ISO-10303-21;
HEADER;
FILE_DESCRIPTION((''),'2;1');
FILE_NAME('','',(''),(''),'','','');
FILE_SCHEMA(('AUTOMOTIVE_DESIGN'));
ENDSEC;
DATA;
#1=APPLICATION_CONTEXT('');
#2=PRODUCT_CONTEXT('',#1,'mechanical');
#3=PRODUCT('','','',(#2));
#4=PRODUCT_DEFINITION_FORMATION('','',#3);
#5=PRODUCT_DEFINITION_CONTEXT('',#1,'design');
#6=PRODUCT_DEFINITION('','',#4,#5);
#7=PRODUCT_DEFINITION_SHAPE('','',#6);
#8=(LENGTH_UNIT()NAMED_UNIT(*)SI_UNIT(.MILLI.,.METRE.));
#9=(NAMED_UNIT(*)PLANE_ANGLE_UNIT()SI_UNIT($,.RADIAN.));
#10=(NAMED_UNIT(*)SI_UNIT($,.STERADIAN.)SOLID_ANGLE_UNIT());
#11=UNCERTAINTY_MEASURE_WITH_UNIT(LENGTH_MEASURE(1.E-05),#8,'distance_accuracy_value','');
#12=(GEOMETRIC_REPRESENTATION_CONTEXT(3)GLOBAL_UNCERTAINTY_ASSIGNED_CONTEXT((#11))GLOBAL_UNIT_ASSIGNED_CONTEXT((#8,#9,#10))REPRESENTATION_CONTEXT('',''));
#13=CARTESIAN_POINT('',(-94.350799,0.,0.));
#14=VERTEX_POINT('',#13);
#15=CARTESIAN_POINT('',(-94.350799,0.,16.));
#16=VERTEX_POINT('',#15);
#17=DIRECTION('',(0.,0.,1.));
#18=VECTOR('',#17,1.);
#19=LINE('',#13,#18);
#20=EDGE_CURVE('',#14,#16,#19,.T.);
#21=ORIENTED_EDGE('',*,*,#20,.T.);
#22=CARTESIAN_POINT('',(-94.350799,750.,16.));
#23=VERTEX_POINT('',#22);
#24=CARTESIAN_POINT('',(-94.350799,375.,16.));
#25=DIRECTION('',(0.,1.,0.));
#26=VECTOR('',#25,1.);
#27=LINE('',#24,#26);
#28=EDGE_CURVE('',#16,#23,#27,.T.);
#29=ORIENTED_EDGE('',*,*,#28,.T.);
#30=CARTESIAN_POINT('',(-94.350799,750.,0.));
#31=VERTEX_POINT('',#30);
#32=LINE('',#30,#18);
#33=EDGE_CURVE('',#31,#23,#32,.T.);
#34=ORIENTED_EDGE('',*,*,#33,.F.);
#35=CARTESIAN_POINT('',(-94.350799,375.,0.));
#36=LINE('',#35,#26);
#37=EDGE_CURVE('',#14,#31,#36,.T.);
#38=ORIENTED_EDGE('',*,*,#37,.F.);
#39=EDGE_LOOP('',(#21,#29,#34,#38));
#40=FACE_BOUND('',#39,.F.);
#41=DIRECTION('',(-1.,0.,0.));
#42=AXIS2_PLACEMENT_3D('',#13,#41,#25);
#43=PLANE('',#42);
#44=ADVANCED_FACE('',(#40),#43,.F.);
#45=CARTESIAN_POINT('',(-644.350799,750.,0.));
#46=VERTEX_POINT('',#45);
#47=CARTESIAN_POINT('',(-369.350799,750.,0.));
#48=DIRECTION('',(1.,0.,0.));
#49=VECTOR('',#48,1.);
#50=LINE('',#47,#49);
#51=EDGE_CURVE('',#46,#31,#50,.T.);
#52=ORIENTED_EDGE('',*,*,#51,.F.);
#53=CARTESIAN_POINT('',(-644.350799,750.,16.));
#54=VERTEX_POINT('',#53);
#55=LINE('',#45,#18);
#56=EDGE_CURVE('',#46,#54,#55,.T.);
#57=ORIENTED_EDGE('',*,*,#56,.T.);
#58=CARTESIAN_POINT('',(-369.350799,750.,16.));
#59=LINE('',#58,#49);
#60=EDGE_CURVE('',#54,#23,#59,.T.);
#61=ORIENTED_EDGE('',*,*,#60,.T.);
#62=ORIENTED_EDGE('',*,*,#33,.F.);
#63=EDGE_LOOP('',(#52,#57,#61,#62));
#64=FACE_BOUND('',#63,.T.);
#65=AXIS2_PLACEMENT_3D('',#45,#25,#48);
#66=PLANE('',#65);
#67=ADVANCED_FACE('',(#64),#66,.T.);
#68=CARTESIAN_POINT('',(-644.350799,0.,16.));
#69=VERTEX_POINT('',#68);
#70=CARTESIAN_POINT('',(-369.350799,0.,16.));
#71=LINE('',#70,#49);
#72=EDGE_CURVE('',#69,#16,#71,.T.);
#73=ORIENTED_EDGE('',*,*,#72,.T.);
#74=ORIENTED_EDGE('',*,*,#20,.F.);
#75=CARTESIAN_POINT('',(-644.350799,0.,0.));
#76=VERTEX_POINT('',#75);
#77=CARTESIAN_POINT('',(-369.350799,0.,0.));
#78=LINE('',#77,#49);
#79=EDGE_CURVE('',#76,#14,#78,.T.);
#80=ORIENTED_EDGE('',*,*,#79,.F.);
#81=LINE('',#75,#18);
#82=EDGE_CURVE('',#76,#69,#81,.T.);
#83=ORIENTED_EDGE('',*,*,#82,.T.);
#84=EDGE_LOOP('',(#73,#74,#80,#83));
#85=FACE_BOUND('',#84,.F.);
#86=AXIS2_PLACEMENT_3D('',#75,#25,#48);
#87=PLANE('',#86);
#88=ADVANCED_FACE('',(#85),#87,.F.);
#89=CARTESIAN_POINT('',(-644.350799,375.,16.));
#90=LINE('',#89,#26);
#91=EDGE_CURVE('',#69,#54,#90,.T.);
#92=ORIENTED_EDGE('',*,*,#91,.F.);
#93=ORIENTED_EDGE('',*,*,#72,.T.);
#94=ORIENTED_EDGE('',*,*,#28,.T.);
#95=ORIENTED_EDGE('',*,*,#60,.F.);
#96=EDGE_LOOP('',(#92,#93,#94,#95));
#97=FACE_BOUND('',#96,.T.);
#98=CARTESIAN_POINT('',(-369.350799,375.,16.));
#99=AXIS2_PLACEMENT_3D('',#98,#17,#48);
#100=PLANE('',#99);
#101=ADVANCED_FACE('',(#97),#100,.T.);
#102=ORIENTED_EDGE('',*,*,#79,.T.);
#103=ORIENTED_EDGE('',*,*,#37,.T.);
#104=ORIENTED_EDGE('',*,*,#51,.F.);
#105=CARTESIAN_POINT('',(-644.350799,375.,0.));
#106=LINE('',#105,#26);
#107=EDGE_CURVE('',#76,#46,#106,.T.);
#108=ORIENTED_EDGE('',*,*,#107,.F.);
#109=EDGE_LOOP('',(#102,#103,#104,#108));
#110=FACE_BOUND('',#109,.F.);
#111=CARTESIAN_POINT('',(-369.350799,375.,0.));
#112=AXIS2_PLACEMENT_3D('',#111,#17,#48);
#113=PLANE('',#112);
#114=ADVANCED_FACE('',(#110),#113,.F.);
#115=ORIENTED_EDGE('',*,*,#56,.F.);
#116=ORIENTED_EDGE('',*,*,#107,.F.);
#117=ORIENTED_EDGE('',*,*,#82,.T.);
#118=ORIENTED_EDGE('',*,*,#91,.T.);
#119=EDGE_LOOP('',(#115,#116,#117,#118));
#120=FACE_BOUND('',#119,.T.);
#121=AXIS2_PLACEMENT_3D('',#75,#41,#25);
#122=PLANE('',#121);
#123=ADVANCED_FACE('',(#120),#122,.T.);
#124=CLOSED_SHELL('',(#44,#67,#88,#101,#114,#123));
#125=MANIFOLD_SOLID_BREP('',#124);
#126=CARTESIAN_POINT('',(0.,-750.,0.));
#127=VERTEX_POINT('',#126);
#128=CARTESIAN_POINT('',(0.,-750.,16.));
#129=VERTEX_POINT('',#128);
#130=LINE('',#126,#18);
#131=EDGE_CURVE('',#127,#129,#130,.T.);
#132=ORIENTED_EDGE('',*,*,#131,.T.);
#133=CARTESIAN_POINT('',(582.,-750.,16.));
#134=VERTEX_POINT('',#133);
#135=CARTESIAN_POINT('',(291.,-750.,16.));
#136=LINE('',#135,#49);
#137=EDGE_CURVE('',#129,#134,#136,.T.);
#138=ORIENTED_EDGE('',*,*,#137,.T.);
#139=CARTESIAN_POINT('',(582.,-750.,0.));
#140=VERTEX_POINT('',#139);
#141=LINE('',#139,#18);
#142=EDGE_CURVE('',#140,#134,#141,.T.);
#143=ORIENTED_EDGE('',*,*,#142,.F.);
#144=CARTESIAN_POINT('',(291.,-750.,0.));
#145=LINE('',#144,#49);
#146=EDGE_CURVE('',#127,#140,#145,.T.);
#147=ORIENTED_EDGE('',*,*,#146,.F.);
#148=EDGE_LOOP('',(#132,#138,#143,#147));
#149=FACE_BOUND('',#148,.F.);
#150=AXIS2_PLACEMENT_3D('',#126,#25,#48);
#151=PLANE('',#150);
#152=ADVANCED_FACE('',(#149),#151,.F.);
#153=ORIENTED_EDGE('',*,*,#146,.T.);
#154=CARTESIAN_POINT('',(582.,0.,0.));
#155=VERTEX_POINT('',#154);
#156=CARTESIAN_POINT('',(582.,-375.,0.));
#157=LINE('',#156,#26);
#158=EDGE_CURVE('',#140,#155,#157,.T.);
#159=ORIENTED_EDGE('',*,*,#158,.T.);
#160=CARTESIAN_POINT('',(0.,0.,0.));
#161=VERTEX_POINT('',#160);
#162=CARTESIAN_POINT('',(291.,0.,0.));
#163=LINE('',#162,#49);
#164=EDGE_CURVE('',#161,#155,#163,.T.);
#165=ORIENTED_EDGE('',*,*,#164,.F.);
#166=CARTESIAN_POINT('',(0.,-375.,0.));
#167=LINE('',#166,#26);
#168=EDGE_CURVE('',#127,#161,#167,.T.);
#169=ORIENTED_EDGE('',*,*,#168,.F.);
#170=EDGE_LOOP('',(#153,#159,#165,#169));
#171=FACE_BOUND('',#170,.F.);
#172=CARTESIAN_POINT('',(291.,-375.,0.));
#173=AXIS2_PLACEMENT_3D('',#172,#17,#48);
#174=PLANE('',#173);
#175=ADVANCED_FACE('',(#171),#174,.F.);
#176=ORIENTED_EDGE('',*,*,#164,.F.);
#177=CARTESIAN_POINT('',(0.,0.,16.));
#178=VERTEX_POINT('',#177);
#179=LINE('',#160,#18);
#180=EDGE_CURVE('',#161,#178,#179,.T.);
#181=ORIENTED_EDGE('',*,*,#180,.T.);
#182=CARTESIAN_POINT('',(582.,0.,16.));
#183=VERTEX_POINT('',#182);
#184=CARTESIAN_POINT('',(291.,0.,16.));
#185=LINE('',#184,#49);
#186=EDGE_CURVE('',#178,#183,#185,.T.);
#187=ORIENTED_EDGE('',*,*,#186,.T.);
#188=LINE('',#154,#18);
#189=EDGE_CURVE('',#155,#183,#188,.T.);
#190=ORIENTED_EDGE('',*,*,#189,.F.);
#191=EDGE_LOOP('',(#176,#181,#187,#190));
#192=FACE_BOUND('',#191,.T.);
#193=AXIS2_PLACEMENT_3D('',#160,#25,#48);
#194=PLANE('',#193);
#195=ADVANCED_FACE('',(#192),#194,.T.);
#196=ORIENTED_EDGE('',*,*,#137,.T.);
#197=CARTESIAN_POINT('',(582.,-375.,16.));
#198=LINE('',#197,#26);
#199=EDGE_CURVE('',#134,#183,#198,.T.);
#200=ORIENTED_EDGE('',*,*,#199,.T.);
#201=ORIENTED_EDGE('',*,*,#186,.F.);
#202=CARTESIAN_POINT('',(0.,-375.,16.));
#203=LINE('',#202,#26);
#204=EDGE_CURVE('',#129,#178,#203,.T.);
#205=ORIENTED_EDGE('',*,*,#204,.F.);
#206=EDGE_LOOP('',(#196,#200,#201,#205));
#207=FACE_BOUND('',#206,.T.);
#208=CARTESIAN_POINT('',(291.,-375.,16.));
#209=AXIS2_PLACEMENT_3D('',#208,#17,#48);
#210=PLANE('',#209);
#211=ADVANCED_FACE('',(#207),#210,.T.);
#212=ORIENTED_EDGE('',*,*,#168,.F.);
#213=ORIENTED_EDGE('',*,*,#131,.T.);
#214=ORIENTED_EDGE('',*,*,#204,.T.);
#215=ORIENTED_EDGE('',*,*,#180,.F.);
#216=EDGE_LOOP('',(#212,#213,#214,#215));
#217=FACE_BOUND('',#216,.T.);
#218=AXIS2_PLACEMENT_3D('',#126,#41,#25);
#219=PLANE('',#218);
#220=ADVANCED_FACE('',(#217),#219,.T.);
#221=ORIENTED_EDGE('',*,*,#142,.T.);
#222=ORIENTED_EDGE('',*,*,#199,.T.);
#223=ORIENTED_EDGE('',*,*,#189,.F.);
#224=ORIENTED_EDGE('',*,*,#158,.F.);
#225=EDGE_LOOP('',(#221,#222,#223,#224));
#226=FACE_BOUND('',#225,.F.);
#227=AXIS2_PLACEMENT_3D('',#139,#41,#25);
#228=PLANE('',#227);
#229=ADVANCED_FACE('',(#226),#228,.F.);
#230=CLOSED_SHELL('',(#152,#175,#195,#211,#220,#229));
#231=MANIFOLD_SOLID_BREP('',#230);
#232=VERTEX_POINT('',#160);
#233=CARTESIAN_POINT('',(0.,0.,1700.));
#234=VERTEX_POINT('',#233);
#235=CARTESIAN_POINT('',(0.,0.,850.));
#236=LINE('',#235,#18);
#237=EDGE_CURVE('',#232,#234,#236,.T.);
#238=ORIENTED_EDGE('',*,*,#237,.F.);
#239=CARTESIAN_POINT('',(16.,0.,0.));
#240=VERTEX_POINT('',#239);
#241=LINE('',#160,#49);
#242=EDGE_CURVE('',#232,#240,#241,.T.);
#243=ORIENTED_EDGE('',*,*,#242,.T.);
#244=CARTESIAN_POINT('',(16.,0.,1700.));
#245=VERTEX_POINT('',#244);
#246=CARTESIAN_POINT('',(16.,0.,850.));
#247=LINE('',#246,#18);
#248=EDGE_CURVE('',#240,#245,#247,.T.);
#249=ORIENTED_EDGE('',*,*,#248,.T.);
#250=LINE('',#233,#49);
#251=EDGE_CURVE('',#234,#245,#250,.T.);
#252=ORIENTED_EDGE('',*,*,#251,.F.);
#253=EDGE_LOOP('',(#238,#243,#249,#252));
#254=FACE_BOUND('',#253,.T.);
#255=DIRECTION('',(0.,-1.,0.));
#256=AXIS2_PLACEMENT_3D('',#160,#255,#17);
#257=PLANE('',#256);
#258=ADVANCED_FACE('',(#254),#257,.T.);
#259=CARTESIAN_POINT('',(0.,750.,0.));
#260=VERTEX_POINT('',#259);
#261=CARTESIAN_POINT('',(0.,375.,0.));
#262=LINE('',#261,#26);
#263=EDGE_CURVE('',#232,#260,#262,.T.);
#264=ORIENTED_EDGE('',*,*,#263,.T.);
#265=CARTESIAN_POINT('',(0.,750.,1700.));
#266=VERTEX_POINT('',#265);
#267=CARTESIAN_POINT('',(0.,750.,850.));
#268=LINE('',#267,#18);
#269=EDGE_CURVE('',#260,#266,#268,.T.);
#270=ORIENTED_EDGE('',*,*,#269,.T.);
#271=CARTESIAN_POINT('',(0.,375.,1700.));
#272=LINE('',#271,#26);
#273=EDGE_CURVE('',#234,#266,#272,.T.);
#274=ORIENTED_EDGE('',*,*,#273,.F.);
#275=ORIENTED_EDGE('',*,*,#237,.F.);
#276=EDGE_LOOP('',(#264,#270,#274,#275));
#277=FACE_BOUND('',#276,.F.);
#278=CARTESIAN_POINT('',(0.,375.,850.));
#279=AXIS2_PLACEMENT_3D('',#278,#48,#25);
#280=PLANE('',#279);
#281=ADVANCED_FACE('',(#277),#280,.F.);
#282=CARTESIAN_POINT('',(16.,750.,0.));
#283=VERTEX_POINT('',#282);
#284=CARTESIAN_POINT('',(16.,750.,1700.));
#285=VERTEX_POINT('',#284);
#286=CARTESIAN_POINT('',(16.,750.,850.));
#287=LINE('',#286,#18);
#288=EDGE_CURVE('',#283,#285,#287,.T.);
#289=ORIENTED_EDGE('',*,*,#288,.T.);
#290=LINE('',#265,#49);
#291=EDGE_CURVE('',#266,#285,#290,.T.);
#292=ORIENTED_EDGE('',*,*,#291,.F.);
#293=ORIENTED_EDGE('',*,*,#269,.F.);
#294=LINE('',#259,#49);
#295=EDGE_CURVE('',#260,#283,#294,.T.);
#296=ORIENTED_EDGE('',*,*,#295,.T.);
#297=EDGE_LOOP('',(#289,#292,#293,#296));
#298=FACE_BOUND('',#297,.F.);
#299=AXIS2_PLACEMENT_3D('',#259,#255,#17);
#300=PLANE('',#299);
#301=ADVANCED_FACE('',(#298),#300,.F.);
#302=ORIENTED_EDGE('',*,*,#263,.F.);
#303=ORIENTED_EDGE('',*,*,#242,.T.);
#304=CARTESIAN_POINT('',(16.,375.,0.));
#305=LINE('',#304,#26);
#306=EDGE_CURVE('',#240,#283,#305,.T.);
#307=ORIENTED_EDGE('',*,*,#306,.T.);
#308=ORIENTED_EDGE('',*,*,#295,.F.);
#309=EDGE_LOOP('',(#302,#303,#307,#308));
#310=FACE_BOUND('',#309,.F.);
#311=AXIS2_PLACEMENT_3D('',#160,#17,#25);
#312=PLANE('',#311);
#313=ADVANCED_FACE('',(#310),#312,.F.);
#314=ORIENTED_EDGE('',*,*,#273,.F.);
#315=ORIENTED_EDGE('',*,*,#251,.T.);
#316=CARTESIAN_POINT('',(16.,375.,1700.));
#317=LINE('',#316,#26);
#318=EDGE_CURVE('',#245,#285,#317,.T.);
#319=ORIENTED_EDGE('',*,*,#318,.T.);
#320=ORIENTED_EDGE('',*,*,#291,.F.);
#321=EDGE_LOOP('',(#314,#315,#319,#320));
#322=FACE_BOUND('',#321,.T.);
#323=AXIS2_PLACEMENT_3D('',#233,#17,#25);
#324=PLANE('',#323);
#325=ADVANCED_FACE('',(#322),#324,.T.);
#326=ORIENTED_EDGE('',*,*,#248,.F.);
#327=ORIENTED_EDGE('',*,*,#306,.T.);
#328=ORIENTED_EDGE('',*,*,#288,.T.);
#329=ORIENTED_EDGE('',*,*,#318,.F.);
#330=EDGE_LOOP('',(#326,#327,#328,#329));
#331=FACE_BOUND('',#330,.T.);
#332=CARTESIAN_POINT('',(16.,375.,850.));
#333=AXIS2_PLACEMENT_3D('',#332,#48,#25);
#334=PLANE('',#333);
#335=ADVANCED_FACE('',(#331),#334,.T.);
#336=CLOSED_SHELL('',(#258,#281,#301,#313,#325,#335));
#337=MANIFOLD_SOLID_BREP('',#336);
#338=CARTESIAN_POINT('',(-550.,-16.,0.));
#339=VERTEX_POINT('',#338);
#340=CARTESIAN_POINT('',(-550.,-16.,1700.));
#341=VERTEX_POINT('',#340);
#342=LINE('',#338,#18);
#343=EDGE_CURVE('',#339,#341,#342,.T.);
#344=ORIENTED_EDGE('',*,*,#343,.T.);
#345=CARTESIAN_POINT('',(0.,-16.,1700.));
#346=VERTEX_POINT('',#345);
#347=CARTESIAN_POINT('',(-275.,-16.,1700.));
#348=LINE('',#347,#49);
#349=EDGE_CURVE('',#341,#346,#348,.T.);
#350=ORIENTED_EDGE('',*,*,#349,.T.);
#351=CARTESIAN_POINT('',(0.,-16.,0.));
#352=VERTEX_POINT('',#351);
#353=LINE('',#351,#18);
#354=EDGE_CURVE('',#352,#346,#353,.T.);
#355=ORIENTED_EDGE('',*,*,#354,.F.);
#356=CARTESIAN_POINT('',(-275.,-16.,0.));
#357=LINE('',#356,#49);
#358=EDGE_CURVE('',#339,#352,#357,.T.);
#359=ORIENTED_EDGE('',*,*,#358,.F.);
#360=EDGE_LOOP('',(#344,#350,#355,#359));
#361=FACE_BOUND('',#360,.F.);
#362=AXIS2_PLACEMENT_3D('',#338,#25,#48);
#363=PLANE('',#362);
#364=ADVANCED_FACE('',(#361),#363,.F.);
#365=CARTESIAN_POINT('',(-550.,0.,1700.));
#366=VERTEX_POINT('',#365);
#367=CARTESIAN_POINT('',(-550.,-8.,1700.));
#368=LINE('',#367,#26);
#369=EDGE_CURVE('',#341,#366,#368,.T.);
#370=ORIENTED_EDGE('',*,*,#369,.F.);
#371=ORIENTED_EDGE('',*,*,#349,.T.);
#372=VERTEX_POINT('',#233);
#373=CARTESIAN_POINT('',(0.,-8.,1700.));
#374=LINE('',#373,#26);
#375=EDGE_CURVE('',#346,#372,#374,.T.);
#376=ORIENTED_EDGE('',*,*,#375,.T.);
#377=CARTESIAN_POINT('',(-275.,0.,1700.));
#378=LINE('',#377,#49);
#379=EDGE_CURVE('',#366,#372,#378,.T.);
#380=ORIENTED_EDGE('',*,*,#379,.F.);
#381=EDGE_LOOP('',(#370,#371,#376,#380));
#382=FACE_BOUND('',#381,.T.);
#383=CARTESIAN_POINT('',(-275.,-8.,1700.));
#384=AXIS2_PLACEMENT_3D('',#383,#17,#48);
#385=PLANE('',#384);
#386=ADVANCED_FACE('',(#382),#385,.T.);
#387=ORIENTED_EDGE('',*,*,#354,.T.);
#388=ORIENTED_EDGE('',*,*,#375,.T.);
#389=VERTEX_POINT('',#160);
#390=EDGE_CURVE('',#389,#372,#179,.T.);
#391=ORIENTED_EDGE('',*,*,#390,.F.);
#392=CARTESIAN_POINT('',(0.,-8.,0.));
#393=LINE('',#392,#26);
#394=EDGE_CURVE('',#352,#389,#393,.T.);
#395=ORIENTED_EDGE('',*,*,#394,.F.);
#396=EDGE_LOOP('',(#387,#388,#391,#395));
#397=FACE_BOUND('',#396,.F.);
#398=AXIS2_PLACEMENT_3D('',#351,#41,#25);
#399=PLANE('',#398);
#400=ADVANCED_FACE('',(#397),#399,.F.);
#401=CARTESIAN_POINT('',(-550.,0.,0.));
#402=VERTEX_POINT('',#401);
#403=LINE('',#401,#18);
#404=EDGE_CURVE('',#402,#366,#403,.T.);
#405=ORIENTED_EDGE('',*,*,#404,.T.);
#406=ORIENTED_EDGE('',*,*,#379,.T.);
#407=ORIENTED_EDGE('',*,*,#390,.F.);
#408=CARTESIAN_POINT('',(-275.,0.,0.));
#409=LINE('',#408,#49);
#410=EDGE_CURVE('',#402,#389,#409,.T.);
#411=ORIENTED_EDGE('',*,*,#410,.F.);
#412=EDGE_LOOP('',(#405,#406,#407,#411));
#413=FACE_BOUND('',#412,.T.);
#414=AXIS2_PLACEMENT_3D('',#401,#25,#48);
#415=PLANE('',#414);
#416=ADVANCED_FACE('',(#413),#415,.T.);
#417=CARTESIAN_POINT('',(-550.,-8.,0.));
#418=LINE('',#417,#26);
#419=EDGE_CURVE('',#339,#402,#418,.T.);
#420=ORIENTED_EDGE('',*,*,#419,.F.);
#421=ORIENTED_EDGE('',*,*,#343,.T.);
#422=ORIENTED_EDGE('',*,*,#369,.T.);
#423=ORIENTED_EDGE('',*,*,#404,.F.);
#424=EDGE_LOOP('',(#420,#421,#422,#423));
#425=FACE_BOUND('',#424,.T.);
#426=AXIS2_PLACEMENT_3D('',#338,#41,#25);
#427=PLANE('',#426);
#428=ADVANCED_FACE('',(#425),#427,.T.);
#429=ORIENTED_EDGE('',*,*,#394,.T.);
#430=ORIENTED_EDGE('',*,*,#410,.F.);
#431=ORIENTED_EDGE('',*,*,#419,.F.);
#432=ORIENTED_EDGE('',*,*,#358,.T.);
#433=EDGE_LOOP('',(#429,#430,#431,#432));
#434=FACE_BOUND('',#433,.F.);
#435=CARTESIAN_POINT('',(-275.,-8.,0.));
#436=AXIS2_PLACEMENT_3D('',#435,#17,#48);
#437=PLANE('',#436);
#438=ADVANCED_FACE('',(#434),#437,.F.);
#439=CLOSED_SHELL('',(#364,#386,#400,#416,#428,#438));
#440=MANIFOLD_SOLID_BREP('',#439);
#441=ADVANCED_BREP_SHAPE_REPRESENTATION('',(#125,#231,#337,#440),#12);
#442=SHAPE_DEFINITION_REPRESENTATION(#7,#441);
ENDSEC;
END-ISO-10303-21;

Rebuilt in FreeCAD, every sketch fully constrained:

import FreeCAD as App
import Part
import Sketcher
from FreeCAD import Vector


def add_polygon(sketch, points):
    """Adds a closed chain of lines whose ends are joined by coincident constraints."""
    first, n = sketch.GeometryCount, len(points)
    for a, b in zip(points, points[1:] + points[:1]):
        sketch.addGeometry(Part.LineSegment(App.Vector(*a, 0), App.Vector(*b, 0)), False)
    for i in range(n):
        sketch.addConstraint(Sketcher.Constraint("Coincident", first + i, 2, first + (i + 1) % n, 1))

doc = App.newDocument("Part")
params = doc.addObject("Spreadsheet::Sheet", "Params")
for row, (alias, value) in enumerate([
    ("sketch1_width", "750 mm"),
    ("sketch1_height", "1700 mm"),
    ("pad1_length", "16 mm"),
    ("sketch2_width", "550 mm"),
    ("sketch2_height", "750 mm"),
    ("pad2_length", "16 mm"),
    ("sketch3_width", "550 mm"),
    ("sketch3_height", "16 mm"),
    ("pad3_length", "1700 mm"),
    ("sketch4_width", "582 mm"),
    ("sketch4_height", "750 mm"),
    ("pad4_length", "16 mm"),
], start=1):
    params.set(f"A{row}", alias)
    params.set(f"B{row}", "=" + value)
    params.setAlias(f"B{row}", alias)

body = doc.addObject("PartDesign::Body", "Body")

sketch1 = body.newObject("Sketcher::SketchObject", "Sketch")
sketch1.AttachmentSupport = (doc.getObject("YZ_Plane"), [""])
sketch1.MapMode = "FlatFace"
add_polygon(sketch1, [(0, 1700), (0, 0), (750, 0), (750, 1700)])
sketch1.addConstraint(Sketcher.Constraint("Vertical", 0))
sketch1.addConstraint(Sketcher.Constraint("Horizontal", 1))
sketch1.addConstraint(Sketcher.Constraint("Vertical", 2))
sketch1.addConstraint(Sketcher.Constraint("Horizontal", 3))
sketch1.addConstraint(Sketcher.Constraint("Coincident", 0, 2, -1, 1))
sketch1.addConstraint(Sketcher.Constraint("DistanceX", 1, 1, 1, 2, 750.0))
sketch1.addConstraint(Sketcher.Constraint("DistanceY", 0, 2, 0, 1, 1700.0))
sketch1.setExpression("Constraints[9]", "Params.sketch1_width")
sketch1.setExpression("Constraints[10]", "Params.sketch1_height")
pad1 = body.newObject("PartDesign::Pad", "Pad")
pad1.Profile = sketch1
pad1.setExpression("Length", "Params.pad1_length")
body2 = doc.addObject("PartDesign::Body", "Body001")

sketch2 = body2.newObject("Sketcher::SketchObject", "Sketch001")
sketch2.AttachmentSupport = (doc.getObject("XY_Plane001"), [""])
sketch2.MapMode = "FlatFace"
add_polygon(sketch2, [(-644.350799, 750), (-644.350799, 0), (-94.350799, 0), (-94.350799, 750)])
sketch2.addConstraint(Sketcher.Constraint("Vertical", 0))
sketch2.addConstraint(Sketcher.Constraint("Horizontal", 1))
sketch2.addConstraint(Sketcher.Constraint("Vertical", 2))
sketch2.addConstraint(Sketcher.Constraint("Horizontal", 3))
sketch2.addConstraint(Sketcher.Constraint("PointOnObject", 0, 2, -1))
sketch2.addConstraint(Sketcher.Constraint("DistanceX", 1, 1, 1, 2, 550.0))
sketch2.addConstraint(Sketcher.Constraint("DistanceY", 0, 2, 0, 1, 750.0))
sketch2.addConstraint(Sketcher.Constraint("DistanceX", 0, 2, -1, 1, 644.350799))
sketch2.setExpression("Constraints[9]", "Params.sketch2_width")
sketch2.setExpression("Constraints[10]", "Params.sketch2_height")
pad2 = body2.newObject("PartDesign::Pad", "Pad001")
pad2.Profile = sketch2
pad2.setExpression("Length", "Params.pad2_length")
body3 = doc.addObject("PartDesign::Body", "Body002")

sketch3 = body3.newObject("Sketcher::SketchObject", "Sketch002")
sketch3.AttachmentSupport = (doc.getObject("XY_Plane002"), [""])
sketch3.MapMode = "FlatFace"
add_polygon(sketch3, [(-550, 0), (-550, -16), (0, -16), (0, 0)])
sketch3.addConstraint(Sketcher.Constraint("Vertical", 0))
sketch3.addConstraint(Sketcher.Constraint("Horizontal", 1))
sketch3.addConstraint(Sketcher.Constraint("Vertical", 2))
sketch3.addConstraint(Sketcher.Constraint("Horizontal", 3))
sketch3.addConstraint(Sketcher.Constraint("Coincident", 2, 2, -1, 1))
sketch3.addConstraint(Sketcher.Constraint("DistanceX", 1, 1, 1, 2, 550.0))
sketch3.addConstraint(Sketcher.Constraint("DistanceY", 0, 2, 0, 1, 16.0))
sketch3.setExpression("Constraints[9]", "Params.sketch3_width")
sketch3.setExpression("Constraints[10]", "Params.sketch3_height")
pad3 = body3.newObject("PartDesign::Pad", "Pad002")
pad3.Profile = sketch3
pad3.setExpression("Length", "Params.pad3_length")
body4 = doc.addObject("PartDesign::Body", "Body003")

sketch4 = body4.newObject("Sketcher::SketchObject", "Sketch003")
sketch4.AttachmentSupport = (doc.getObject("XY_Plane003"), [""])
sketch4.MapMode = "FlatFace"
add_polygon(sketch4, [(0, 0), (0, -750), (582, -750), (582, 0)])
sketch4.addConstraint(Sketcher.Constraint("Vertical", 0))
sketch4.addConstraint(Sketcher.Constraint("Horizontal", 1))
sketch4.addConstraint(Sketcher.Constraint("Vertical", 2))
sketch4.addConstraint(Sketcher.Constraint("Horizontal", 3))
sketch4.addConstraint(Sketcher.Constraint("Coincident", 3, 2, -1, 1))
sketch4.addConstraint(Sketcher.Constraint("DistanceX", 1, 1, 1, 2, 582.0))
sketch4.addConstraint(Sketcher.Constraint("DistanceY", 0, 2, 0, 1, 750.0))
sketch4.setExpression("Constraints[9]", "Params.sketch4_width")
sketch4.setExpression("Constraints[10]", "Params.sketch4_height")
pad4 = body4.newObject("PartDesign::Pad", "Pad003")
pad4.Profile = sketch4
pad4.setExpression("Length", "Params.pad4_length")

doc.recompute()
